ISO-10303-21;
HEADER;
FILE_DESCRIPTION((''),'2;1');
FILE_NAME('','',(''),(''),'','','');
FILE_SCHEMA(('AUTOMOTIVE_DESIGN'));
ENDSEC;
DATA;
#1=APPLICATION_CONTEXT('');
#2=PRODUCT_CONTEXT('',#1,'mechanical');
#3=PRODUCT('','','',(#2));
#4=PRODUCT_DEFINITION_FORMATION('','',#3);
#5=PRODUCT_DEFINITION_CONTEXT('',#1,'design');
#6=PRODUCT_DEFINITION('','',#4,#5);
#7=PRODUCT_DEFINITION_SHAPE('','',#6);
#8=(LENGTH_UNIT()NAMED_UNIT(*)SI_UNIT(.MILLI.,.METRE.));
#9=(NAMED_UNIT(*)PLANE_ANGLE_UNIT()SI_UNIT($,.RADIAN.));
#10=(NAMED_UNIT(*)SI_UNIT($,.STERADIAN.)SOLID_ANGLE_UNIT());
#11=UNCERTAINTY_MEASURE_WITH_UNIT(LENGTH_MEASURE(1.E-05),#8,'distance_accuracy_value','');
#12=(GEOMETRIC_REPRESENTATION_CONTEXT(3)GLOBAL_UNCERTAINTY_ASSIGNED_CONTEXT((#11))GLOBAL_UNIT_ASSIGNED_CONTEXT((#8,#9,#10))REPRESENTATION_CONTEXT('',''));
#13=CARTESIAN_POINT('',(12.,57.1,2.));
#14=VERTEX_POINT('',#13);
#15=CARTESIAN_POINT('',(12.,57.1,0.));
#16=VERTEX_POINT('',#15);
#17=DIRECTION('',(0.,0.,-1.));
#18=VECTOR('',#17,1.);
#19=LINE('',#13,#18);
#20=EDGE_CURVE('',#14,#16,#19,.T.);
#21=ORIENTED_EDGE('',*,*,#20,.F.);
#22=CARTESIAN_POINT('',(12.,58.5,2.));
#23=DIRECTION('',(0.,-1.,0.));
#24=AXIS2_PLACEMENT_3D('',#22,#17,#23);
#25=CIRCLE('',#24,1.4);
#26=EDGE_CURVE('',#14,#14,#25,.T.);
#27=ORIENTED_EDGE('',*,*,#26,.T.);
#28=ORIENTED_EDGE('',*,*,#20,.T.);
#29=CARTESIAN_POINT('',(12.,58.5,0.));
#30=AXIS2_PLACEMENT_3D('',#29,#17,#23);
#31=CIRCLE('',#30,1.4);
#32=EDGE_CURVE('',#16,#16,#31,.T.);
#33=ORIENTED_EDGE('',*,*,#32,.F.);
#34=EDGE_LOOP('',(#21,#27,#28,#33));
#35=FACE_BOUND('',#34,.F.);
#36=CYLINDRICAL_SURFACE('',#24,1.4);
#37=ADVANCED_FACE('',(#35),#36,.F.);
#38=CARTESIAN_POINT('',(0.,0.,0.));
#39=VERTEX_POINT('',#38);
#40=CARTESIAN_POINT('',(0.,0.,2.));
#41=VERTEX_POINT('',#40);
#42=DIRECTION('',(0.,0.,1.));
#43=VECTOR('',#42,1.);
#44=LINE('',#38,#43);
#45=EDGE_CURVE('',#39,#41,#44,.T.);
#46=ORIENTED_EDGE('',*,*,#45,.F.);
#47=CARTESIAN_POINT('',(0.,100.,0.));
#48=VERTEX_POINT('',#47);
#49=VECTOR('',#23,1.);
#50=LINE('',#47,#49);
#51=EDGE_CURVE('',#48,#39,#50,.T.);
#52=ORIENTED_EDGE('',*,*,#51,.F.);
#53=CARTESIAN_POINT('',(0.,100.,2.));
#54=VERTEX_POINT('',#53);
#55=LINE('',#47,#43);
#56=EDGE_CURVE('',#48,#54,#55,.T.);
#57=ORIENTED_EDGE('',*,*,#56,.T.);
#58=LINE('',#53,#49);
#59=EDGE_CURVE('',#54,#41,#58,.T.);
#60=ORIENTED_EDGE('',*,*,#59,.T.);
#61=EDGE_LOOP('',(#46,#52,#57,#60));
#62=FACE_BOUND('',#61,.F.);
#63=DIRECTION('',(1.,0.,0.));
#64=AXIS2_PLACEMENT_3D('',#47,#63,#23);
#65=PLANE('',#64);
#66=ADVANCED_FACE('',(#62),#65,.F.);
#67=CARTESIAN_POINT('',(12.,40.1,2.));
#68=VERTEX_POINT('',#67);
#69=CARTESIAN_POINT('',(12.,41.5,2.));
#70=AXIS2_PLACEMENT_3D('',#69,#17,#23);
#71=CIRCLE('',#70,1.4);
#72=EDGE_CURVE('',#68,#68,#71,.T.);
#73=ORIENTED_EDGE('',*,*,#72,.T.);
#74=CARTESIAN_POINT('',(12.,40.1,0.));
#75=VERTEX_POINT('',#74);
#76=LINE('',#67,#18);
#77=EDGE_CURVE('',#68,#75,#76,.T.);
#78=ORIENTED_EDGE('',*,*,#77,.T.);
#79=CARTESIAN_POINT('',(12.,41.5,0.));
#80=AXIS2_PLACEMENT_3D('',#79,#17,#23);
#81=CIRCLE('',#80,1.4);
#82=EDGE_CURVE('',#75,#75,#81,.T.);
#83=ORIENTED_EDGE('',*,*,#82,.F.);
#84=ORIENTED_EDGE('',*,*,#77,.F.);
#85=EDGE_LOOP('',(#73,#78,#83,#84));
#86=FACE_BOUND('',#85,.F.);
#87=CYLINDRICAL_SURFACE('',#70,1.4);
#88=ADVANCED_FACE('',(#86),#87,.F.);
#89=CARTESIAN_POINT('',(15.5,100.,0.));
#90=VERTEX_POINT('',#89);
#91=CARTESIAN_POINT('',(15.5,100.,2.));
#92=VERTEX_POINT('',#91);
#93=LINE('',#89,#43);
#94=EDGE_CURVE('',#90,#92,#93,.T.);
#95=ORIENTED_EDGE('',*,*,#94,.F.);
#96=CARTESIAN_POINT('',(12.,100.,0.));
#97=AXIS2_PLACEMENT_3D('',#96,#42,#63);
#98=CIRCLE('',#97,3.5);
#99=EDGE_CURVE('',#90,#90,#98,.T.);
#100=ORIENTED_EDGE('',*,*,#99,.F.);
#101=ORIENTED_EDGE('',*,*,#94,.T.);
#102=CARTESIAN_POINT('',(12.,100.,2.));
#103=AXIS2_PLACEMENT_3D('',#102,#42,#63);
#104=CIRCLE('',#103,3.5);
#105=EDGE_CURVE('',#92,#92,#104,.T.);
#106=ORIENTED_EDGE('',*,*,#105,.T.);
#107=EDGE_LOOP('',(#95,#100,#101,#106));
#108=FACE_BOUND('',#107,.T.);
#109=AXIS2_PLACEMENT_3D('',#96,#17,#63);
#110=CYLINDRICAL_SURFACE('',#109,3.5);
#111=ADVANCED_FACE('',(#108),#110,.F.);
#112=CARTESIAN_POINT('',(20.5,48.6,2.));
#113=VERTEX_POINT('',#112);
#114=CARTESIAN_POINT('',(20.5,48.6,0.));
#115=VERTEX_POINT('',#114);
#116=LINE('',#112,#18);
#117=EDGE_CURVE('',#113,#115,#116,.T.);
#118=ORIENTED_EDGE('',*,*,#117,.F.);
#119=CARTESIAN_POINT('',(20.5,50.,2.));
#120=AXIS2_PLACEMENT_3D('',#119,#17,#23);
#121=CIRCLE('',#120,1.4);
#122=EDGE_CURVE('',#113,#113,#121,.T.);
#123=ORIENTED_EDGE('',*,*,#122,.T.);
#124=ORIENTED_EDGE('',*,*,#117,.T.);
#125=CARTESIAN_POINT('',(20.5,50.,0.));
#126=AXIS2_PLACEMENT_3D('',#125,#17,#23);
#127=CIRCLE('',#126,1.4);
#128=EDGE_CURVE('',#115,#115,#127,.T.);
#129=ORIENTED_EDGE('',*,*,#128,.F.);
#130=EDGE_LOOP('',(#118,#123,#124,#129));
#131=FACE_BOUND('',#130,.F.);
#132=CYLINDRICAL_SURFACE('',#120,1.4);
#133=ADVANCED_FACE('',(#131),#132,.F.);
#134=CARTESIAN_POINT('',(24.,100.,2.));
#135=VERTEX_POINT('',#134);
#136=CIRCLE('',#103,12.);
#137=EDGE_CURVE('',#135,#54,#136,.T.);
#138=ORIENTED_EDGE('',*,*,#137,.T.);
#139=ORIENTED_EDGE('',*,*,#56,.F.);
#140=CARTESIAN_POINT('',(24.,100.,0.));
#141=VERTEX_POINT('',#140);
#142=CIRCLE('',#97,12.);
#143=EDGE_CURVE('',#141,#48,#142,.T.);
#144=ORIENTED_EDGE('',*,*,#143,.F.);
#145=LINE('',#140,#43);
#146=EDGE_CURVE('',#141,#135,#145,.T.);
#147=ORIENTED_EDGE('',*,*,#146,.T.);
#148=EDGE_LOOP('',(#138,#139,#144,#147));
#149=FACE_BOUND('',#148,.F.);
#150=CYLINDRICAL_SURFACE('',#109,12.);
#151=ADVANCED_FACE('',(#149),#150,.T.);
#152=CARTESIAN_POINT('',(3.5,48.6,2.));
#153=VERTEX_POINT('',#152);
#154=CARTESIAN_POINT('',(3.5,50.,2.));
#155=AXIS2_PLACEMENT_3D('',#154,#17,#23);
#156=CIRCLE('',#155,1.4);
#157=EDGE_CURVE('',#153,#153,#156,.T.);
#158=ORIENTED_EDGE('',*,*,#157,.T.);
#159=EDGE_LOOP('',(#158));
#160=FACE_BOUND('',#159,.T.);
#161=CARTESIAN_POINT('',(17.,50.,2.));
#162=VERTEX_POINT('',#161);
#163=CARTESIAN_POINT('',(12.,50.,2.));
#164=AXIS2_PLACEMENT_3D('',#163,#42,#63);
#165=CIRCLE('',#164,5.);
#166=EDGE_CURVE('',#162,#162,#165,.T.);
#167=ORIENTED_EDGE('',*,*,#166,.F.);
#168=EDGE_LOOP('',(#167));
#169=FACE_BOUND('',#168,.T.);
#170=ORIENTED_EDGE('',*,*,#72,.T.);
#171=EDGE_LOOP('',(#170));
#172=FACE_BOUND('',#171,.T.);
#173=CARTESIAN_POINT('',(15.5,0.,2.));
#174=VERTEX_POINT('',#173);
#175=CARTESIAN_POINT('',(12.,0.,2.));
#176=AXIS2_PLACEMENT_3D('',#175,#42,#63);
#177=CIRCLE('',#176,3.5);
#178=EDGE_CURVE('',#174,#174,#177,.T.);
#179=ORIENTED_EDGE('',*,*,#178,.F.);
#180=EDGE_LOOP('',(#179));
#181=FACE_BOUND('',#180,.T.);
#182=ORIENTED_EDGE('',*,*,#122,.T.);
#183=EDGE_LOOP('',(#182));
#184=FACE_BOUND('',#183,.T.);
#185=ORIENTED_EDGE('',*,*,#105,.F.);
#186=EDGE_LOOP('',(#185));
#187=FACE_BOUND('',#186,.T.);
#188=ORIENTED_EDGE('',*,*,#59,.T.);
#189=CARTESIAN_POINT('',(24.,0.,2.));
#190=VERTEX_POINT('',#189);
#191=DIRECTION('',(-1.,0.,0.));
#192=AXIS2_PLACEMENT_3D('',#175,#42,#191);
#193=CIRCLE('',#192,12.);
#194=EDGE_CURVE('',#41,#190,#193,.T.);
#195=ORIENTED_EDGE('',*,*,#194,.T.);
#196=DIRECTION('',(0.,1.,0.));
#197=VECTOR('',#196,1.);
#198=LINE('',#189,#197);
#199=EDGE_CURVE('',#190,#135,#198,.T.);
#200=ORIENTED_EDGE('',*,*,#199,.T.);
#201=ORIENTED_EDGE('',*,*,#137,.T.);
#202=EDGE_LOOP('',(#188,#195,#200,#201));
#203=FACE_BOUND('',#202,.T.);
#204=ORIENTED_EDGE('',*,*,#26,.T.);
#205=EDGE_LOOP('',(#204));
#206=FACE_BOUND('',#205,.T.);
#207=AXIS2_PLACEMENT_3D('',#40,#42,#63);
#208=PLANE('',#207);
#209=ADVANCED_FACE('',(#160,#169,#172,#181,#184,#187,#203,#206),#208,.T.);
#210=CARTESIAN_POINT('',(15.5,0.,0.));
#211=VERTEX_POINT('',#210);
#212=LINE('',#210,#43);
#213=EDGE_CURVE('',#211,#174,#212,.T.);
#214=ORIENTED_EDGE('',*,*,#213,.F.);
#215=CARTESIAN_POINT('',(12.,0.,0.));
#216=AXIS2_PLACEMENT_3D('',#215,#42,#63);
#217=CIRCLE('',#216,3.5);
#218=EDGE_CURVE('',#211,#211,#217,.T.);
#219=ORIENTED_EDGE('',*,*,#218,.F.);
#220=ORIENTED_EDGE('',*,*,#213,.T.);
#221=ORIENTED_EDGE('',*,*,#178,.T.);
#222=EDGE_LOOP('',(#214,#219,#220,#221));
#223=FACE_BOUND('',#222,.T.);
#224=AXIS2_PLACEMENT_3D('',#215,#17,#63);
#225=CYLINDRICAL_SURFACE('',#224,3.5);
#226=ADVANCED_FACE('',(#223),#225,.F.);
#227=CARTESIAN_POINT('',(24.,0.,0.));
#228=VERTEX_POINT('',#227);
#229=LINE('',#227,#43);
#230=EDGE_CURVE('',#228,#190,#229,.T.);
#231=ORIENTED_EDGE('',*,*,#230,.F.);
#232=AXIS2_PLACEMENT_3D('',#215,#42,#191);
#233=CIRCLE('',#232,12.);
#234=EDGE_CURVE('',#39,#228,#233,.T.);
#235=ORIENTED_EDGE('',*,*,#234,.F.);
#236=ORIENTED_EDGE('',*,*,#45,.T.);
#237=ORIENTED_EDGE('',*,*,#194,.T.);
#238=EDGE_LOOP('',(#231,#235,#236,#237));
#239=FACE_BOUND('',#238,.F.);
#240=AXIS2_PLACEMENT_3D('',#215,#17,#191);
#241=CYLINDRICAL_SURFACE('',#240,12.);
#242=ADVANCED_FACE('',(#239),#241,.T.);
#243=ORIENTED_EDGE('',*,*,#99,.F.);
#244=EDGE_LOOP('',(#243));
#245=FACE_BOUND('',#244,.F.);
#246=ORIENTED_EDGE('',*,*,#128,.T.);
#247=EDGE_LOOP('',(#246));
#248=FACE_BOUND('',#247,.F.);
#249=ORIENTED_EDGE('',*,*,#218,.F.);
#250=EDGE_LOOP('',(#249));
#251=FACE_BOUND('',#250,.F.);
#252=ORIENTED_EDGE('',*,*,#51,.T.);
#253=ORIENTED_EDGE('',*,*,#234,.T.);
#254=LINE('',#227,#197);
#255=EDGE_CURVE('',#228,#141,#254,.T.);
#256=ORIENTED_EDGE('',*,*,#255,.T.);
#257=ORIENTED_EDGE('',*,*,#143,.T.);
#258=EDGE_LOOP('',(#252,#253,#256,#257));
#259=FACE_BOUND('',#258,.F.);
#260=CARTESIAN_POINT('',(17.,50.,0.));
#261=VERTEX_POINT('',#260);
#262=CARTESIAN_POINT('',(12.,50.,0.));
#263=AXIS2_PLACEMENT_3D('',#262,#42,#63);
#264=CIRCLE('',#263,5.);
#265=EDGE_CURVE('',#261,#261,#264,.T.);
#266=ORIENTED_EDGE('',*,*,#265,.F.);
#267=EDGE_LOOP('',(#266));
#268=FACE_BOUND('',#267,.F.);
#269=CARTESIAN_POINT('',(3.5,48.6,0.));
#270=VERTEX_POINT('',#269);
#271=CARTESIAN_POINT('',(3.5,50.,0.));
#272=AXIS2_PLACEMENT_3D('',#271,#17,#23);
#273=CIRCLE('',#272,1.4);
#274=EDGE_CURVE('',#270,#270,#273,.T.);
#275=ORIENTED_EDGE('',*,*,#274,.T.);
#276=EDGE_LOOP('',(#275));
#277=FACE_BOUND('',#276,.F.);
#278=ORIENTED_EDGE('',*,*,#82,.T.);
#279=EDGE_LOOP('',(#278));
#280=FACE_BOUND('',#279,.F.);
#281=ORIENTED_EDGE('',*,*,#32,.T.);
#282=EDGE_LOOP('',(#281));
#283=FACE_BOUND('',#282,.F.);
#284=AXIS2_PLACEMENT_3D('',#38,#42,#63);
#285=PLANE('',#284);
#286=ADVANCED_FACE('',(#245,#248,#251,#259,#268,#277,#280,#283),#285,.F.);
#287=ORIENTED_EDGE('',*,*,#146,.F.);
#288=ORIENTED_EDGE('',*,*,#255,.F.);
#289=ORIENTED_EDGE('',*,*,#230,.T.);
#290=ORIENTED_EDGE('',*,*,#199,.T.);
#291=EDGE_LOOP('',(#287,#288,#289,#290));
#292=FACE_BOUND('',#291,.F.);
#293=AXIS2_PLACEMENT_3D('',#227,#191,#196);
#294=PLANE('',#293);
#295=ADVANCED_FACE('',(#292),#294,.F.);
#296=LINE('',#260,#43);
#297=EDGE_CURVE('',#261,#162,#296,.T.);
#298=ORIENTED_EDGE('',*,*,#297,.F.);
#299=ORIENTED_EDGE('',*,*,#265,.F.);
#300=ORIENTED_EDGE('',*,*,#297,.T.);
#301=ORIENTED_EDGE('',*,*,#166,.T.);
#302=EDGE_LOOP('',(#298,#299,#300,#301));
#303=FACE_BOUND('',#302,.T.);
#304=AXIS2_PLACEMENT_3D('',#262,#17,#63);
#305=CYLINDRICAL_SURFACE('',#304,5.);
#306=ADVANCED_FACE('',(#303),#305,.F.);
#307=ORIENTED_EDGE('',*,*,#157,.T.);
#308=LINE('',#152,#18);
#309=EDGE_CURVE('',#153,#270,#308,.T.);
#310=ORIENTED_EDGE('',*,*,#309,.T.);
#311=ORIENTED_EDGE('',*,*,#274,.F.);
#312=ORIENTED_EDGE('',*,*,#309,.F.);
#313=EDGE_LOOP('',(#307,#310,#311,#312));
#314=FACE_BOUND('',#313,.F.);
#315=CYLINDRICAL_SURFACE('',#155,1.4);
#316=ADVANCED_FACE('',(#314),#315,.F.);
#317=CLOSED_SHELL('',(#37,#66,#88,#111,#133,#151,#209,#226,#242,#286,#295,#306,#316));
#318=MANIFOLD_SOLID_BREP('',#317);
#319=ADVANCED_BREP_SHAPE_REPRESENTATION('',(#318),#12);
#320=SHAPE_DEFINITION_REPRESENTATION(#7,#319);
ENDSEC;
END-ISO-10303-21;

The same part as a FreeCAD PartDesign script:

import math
import FreeCAD as App
import Part
import Sketcher

doc = App.newDocument("Part")
body = doc.addObject("PartDesign::Body", "Body")

# Sketch on XY plane
sketch1 = body.newObject("Sketcher::SketchObject", "Sketch")
sketch1.AttachmentSupport = (doc.getObject("XY_Plane"), [""])
sketch1.MapMode = "FlatFace"
sketch1.addGeometry([
    Part.ArcOfCircle(Part.Circle(App.Vector(12, 0, 0), App.Vector(0, 0, 1), 12), math.radians(180), math.radians(360)),  # 0
    Part.LineSegment(App.Vector(24, 0, 0), App.Vector(24, 100, 0)),  # 1
    Part.ArcOfCircle(Part.Circle(App.Vector(12, 100, 0), App.Vector(0, 0, 1), 12), math.radians(0), math.radians(180)),  # 2
    Part.LineSegment(App.Vector(0, 100, 0), App.Vector(0, 0, 0)),  # 3
    Part.Circle(App.Vector(12, 0, 0), App.Vector(0, 0, 1), 3.5),  # 4
    Part.Circle(App.Vector(12, 50, 0), App.Vector(0, 0, 1), 5),  # 5
    Part.Circle(App.Vector(12, 100, 0), App.Vector(0, 0, 1), 3.5),  # 6
], False)
sketch1.addConstraint([
    Sketcher.Constraint("Tangent", 0, 2, 1, 1),
    Sketcher.Constraint("Tangent", 1, 2, 2, 1),
    Sketcher.Constraint("Tangent", 2, 2, 3, 1),
    Sketcher.Constraint("Tangent", 3, 2, 0, 1),
    Sketcher.Constraint("Vertical", 1),
    Sketcher.Constraint("Vertical", 3),
    Sketcher.Constraint("Coincident", 3, 2, -1, 1),
    Sketcher.Constraint("Coincident", 4, 3, 0, 3),
    Sketcher.Constraint("Coincident", 6, 3, 2, 3),
    Sketcher.Constraint("Equal", 4, 6),
    Sketcher.Constraint("Vertical", 4, 3, 5, 3),
    Sketcher.Constraint("Diameter", 4, 7.0),
    Sketcher.Constraint("Diameter", 5, 10.0),
    Sketcher.Constraint("Radius", 0, 12.0),
    Sketcher.Constraint("DistanceY", 1, 1, 1, 2, 100.0),
    Sketcher.Constraint("DistanceY", -1, 1, 5, 3, 50.0),
])
pad1 = body.newObject("PartDesign::Pad", "Pad")
pad1.Profile = sketch1
pad1.Length = 2

# Sketch on XY plane
sketch2 = body.newObject("Sketcher::SketchObject", "Sketch001")
sketch2.AttachmentSupport = (doc.getObject("XY_Plane"), [""])
sketch2.MapMode = "FlatFace"
sketch2.AttachmentOffset = App.Placement(App.Vector(0, 0, 2), App.Rotation())
sketch2.addGeometry([
    Part.Circle(App.Vector(20.5, 50, 0), App.Vector(0, 0, 1), 1.4),
    Part.Circle(App.Vector(12, 58.5, 0), App.Vector(0, 0, 1), 1.4),
    Part.Circle(App.Vector(3.5, 50, 0), App.Vector(0, 0, 1), 1.4),
    Part.Circle(App.Vector(12, 41.5, 0), App.Vector(0, 0, 1), 1.4),
], False)
sketch2.addConstraint([
    Sketcher.Constraint("Equal", 0, 1),
    Sketcher.Constraint("Equal", 1, 2),
    Sketcher.Constraint("Equal", 2, 3),
    Sketcher.Constraint("Horizontal", 0, 3, 2, 3),
    Sketcher.Constraint("Vertical", 1, 3, 3, 3),
    Sketcher.Constraint("Diameter", 0, 2.8),
    Sketcher.Constraint("DistanceY", -1, 1, 0, 3, 50.0),
    Sketcher.Constraint("DistanceX", -1, 1, 1, 3, 12.0),
    Sketcher.Constraint("DistanceX", 2, 3, 0, 3, 17.0),
    Sketcher.Constraint("DistanceY", 3, 3, 1, 3, 17.0),
    Sketcher.Constraint("DistanceX", -1, 1, 0, 3, 20.5),
    Sketcher.Constraint("DistanceY", -1, 1, 1, 3, 58.5),
])
doc.recompute()
hole = body.newObject("PartDesign::Hole", "Hole")
hole.Profile = sketch2
hole.ThreadType = "None"
hole.Diameter = 2.8
hole.DepthType = "ThroughAll"

doc.recompute()
